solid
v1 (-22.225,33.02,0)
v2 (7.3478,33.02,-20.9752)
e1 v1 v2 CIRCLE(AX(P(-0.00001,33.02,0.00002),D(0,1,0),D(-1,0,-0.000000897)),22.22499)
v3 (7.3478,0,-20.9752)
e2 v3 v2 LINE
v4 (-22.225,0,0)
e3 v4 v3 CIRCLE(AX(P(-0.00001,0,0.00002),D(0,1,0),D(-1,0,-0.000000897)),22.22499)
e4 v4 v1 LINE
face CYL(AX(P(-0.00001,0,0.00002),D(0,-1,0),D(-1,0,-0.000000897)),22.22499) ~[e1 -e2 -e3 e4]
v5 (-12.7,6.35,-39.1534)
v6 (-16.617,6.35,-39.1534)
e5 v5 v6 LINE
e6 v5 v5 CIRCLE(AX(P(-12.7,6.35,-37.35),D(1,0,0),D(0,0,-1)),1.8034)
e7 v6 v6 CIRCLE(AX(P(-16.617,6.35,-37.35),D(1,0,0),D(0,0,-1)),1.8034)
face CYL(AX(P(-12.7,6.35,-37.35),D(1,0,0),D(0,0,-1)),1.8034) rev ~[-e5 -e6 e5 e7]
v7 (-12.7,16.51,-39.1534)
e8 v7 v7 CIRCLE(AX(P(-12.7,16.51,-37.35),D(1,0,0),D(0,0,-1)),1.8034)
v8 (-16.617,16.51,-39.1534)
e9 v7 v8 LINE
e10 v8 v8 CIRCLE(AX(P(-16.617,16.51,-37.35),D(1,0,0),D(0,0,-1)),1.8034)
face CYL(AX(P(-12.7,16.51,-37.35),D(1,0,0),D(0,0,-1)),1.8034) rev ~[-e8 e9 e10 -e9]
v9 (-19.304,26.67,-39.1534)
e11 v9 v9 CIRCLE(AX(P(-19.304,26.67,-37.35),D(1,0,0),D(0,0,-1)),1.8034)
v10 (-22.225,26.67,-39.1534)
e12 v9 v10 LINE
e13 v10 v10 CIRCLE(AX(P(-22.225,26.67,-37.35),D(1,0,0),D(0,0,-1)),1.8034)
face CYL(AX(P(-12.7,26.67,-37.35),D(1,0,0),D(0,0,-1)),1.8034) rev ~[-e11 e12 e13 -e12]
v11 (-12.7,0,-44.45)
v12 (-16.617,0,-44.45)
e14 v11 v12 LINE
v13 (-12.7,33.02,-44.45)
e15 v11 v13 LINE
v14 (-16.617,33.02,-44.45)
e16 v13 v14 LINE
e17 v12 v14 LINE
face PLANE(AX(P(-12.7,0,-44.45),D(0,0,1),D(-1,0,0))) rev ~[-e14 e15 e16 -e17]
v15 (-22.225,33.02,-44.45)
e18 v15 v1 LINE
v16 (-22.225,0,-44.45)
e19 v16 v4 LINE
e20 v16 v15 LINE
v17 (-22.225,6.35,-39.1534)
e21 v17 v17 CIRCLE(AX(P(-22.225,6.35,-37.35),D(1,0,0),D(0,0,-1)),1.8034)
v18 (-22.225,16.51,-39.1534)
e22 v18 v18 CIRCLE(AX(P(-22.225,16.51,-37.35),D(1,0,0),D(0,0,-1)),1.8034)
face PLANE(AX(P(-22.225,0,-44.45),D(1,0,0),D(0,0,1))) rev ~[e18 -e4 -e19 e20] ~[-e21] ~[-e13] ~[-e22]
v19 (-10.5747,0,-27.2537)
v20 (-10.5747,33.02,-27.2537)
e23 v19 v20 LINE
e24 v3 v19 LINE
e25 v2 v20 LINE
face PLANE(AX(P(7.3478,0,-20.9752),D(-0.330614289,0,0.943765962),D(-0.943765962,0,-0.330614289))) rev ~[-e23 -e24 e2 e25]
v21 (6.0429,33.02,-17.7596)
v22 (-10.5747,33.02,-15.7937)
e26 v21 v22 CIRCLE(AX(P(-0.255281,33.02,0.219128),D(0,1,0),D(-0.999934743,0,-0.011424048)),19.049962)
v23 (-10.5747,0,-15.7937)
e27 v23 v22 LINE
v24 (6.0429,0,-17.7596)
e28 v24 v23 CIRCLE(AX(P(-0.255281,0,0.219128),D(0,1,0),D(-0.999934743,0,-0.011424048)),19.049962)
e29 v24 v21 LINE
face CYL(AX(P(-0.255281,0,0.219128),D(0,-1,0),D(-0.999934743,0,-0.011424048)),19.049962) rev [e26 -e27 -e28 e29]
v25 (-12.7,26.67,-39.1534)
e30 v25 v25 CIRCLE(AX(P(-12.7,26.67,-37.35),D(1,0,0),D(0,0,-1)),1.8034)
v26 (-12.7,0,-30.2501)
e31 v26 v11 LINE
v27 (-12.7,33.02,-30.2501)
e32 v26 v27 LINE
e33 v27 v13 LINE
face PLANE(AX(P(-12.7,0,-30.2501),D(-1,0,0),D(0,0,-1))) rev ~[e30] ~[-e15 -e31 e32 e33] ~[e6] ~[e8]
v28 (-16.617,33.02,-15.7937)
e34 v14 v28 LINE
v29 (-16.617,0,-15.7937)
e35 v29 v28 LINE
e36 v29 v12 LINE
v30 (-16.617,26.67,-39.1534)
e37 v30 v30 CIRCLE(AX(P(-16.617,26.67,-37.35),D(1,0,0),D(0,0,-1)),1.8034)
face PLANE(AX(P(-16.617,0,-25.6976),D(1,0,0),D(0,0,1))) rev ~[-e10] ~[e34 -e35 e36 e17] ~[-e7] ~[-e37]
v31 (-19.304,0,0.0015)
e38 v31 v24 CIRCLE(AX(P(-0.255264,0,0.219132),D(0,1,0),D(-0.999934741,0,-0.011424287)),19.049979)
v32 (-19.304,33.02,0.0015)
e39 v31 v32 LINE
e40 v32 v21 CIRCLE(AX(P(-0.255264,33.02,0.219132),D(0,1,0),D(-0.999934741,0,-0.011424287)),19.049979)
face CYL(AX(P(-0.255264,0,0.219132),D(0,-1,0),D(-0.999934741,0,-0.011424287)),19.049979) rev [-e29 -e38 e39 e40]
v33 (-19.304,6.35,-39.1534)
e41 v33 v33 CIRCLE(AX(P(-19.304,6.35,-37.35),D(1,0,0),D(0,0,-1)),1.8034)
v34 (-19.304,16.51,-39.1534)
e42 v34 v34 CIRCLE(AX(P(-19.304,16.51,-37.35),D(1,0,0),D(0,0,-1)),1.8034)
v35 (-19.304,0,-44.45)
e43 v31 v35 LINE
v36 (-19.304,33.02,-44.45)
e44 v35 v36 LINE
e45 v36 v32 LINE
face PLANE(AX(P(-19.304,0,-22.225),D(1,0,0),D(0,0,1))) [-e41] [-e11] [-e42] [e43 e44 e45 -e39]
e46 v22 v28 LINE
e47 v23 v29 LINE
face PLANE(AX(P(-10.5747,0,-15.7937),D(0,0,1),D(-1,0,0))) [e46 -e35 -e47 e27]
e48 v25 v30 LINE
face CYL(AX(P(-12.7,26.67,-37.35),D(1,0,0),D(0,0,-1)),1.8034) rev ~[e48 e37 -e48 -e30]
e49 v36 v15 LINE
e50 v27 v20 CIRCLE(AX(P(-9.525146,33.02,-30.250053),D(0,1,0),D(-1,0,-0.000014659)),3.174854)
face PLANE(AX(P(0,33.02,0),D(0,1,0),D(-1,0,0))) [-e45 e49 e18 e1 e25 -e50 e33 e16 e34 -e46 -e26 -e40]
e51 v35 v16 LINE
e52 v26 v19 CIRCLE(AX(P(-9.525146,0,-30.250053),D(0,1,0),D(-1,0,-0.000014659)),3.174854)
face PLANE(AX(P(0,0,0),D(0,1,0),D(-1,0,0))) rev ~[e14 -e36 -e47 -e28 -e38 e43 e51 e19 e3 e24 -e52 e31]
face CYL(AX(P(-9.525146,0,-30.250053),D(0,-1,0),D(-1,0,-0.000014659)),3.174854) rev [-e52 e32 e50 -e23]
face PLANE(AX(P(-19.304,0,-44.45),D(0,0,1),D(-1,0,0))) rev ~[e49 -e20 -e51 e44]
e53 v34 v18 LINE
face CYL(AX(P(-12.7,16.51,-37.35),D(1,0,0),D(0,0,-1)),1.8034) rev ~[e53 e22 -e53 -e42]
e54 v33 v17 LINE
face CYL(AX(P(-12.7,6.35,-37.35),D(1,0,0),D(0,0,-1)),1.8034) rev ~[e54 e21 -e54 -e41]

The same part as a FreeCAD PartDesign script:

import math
import FreeCAD as App
import Part
import Sketcher
from FreeCAD import Vector
Q = App.Units.Quantity

doc = App.newDocument("Part")
body = doc.addObject("PartDesign::Body", "Body")

sketch1 = body.newObject("Sketcher::SketchObject", "Sketch")
sketch1.AttachmentSupport = (doc.getObject("XZ_Plane"), [""])
sketch1.MapMode = "FlatFace"
sketch1.addGeometry([
    Part.ArcOfCircle(Part.Circle(Vector(-0.3, 0.2, 0), Vector(0, 0, 1), 19), math.radians(-71), math.radians(181)),
    Part.LineSegment(Vector(-19.3, 0, 0), Vector(-19.3, -44.5, 0)),
    Part.LineSegment(Vector(-19.3, -44.5, 0), Vector(-22.2, -44.5, 0)),
    Part.LineSegment(Vector(-22.2, -44.5, 0), Vector(-22.2, 0, 0)),
    Part.ArcOfCircle(Part.Circle(Vector(0, 0, 0), Vector(0, 0, 1), 22.2), math.radians(-71), math.radians(180)),
    Part.LineSegment(Vector(7.3, -21, 0), Vector(-10.6, -27.3, 0)),
    Part.ArcOfCircle(Part.Circle(Vector(-9.5, -30.3, 0), Vector(0, 0, 1), 3.2), math.radians(109), math.radians(180)),
    Part.LineSegment(Vector(-12.7, -30.3, 0), Vector(-12.7, -44.5, 0)),
    Part.LineSegment(Vector(-12.7, -44.5, 0), Vector(-16.6, -44.5, 0)),
    Part.LineSegment(Vector(-16.6, -44.5, 0), Vector(-16.6, -15.8, 0)),
    Part.LineSegment(Vector(-16.6, -15.8, 0), Vector(-10.6, -15.8, 0)),
    Part.ArcOfCircle(Part.Circle(Vector(-0.3, 0.2, 0), Vector(0, 0, 1), 19), math.radians(-123), math.radians(-71)),
], False)
sketch1.addConstraint([
    Sketcher.Constraint("Coincident", 0, 2, 1, 1),
    Sketcher.Constraint("Coincident", 1, 2, 2, 1),
    Sketcher.Constraint("Coincident", 2, 2, 3, 1),
    Sketcher.Constraint("Tangent", 3, 2, 4, 2),
    Sketcher.Constraint("Tangent", 4, 1, 5, 1),
    Sketcher.Constraint("Tangent", 5, 2, 6, 1),
    Sketcher.Constraint("Tangent", 6, 2, 7, 1),
    Sketcher.Constraint("Coincident", 7, 2, 8, 1),
    Sketcher.Constraint("Coincident", 8, 2, 9, 1),
    Sketcher.Constraint("Coincident", 9, 2, 10, 1),
    Sketcher.Constraint("Coincident", 10, 2, 11, 1),
    Sketcher.Constraint("Tangent", 11, 2, 0, 1),
    Sketcher.Constraint("Vertical", 1),
    Sketcher.Constraint("Horizontal", 2),
    Sketcher.Constraint("Vertical", 3),
    Sketcher.Constraint("Vertical", 7),
    Sketcher.Constraint("Horizontal", 8),
    Sketcher.Constraint("Vertical", 9),
    Sketcher.Constraint("Horizontal", 10),
    Sketcher.Constraint("Coincident", 4, 3, -1, 1),
    Sketcher.Constraint("Equal", 0, 11),
    Sketcher.Constraint("Horizontal", 2, 2, 7, 2),
    Sketcher.Constraint("Vertical", 5, 2, 10, 2),
    Sketcher.Constraint("Radius", 0, Q("0.75 in")),
    Sketcher.Constraint("Radius", 4, Q("0.875 in")),
    Sketcher.Constraint("Radius", 6, Q("0.125 in")),
    Sketcher.Constraint("DistanceY", 3, 1, 3, 2, Q("1.75 in")),
    Sketcher.Constraint("DistanceX", 6, 2, -1, 1, Q("0.5 in")),
    Sketcher.Constraint("DistanceX", 2, 2, 2, 1, Q("0.115 in")),
    Sketcher.Constraint("DistanceY", 9, 1, 9, 2, Q("1.1282 in")),
    Sketcher.Constraint("DistanceY", 6, 3, 0, 2, Q("1.191 in")),
    Sketcher.Constraint("DistanceX", 8, 2, 8, 1, Q("3.917 mm")),
    Sketcher.Constraint("DistanceX", 10, 1, 10, 2, Q("6.0423 mm")),
    Sketcher.Constraint("DistanceX", -1, 1, 11, 2, Q("0.2379 in")),
])
pad1 = body.newObject("PartDesign::Pad", "Pad")
pad1.Profile = sketch1
pad1.Length = Q("1.3 in")
pad1.Reversed = True

sketch2 = body.newObject("Sketcher::SketchObject", "Sketch001")
sketch2.AttachmentSupport = (doc.getObject("YZ_Plane"), [""])
sketch2.MapMode = "FlatFace"
sketch2.AttachmentOffset = App.Placement(Vector(0, 0, -0.5 * 25.4), App.Rotation())
sketch2.addGeometry([
    Part.Circle(Vector(26.7, -37.4, 0), Vector(0, 0, 1), 1.8),
    Part.Circle(Vector(16.5, -37.4, 0), Vector(0, 0, 1), 1.8),
    Part.Circle(Vector(6.3, -37.4, 0), Vector(0, 0, 1), 1.8),
], False)
sketch2.addConstraint([
    Sketcher.Constraint("Equal", 0, 1),
    Sketcher.Constraint("Equal", 1, 2),
    Sketcher.Constraint("Horizontal", 0, 3, 1, 3),
    Sketcher.Constraint("Horizontal", 1, 3, 2, 3),
    Sketcher.Constraint("Diameter", 0, Q("0.142 in")),
    Sketcher.Constraint("DistanceX", 1, 3, 0, 3, Q("0.4 in")),
    Sketcher.Constraint("DistanceX", 2, 3, 1, 3, Q("0.4 in")),
    Sketcher.Constraint("DistanceX", -1, 1, 0, 3, Q("1.05 in")),
    Sketcher.Constraint("DistanceY", 0, 3, -1, 1, Q("37.35 mm")),
])
pocket1 = body.newObject("PartDesign::Pocket", "Pocket")
pocket1.Profile = sketch2
pocket1.Type = "ThroughAll"

doc.recompute()
